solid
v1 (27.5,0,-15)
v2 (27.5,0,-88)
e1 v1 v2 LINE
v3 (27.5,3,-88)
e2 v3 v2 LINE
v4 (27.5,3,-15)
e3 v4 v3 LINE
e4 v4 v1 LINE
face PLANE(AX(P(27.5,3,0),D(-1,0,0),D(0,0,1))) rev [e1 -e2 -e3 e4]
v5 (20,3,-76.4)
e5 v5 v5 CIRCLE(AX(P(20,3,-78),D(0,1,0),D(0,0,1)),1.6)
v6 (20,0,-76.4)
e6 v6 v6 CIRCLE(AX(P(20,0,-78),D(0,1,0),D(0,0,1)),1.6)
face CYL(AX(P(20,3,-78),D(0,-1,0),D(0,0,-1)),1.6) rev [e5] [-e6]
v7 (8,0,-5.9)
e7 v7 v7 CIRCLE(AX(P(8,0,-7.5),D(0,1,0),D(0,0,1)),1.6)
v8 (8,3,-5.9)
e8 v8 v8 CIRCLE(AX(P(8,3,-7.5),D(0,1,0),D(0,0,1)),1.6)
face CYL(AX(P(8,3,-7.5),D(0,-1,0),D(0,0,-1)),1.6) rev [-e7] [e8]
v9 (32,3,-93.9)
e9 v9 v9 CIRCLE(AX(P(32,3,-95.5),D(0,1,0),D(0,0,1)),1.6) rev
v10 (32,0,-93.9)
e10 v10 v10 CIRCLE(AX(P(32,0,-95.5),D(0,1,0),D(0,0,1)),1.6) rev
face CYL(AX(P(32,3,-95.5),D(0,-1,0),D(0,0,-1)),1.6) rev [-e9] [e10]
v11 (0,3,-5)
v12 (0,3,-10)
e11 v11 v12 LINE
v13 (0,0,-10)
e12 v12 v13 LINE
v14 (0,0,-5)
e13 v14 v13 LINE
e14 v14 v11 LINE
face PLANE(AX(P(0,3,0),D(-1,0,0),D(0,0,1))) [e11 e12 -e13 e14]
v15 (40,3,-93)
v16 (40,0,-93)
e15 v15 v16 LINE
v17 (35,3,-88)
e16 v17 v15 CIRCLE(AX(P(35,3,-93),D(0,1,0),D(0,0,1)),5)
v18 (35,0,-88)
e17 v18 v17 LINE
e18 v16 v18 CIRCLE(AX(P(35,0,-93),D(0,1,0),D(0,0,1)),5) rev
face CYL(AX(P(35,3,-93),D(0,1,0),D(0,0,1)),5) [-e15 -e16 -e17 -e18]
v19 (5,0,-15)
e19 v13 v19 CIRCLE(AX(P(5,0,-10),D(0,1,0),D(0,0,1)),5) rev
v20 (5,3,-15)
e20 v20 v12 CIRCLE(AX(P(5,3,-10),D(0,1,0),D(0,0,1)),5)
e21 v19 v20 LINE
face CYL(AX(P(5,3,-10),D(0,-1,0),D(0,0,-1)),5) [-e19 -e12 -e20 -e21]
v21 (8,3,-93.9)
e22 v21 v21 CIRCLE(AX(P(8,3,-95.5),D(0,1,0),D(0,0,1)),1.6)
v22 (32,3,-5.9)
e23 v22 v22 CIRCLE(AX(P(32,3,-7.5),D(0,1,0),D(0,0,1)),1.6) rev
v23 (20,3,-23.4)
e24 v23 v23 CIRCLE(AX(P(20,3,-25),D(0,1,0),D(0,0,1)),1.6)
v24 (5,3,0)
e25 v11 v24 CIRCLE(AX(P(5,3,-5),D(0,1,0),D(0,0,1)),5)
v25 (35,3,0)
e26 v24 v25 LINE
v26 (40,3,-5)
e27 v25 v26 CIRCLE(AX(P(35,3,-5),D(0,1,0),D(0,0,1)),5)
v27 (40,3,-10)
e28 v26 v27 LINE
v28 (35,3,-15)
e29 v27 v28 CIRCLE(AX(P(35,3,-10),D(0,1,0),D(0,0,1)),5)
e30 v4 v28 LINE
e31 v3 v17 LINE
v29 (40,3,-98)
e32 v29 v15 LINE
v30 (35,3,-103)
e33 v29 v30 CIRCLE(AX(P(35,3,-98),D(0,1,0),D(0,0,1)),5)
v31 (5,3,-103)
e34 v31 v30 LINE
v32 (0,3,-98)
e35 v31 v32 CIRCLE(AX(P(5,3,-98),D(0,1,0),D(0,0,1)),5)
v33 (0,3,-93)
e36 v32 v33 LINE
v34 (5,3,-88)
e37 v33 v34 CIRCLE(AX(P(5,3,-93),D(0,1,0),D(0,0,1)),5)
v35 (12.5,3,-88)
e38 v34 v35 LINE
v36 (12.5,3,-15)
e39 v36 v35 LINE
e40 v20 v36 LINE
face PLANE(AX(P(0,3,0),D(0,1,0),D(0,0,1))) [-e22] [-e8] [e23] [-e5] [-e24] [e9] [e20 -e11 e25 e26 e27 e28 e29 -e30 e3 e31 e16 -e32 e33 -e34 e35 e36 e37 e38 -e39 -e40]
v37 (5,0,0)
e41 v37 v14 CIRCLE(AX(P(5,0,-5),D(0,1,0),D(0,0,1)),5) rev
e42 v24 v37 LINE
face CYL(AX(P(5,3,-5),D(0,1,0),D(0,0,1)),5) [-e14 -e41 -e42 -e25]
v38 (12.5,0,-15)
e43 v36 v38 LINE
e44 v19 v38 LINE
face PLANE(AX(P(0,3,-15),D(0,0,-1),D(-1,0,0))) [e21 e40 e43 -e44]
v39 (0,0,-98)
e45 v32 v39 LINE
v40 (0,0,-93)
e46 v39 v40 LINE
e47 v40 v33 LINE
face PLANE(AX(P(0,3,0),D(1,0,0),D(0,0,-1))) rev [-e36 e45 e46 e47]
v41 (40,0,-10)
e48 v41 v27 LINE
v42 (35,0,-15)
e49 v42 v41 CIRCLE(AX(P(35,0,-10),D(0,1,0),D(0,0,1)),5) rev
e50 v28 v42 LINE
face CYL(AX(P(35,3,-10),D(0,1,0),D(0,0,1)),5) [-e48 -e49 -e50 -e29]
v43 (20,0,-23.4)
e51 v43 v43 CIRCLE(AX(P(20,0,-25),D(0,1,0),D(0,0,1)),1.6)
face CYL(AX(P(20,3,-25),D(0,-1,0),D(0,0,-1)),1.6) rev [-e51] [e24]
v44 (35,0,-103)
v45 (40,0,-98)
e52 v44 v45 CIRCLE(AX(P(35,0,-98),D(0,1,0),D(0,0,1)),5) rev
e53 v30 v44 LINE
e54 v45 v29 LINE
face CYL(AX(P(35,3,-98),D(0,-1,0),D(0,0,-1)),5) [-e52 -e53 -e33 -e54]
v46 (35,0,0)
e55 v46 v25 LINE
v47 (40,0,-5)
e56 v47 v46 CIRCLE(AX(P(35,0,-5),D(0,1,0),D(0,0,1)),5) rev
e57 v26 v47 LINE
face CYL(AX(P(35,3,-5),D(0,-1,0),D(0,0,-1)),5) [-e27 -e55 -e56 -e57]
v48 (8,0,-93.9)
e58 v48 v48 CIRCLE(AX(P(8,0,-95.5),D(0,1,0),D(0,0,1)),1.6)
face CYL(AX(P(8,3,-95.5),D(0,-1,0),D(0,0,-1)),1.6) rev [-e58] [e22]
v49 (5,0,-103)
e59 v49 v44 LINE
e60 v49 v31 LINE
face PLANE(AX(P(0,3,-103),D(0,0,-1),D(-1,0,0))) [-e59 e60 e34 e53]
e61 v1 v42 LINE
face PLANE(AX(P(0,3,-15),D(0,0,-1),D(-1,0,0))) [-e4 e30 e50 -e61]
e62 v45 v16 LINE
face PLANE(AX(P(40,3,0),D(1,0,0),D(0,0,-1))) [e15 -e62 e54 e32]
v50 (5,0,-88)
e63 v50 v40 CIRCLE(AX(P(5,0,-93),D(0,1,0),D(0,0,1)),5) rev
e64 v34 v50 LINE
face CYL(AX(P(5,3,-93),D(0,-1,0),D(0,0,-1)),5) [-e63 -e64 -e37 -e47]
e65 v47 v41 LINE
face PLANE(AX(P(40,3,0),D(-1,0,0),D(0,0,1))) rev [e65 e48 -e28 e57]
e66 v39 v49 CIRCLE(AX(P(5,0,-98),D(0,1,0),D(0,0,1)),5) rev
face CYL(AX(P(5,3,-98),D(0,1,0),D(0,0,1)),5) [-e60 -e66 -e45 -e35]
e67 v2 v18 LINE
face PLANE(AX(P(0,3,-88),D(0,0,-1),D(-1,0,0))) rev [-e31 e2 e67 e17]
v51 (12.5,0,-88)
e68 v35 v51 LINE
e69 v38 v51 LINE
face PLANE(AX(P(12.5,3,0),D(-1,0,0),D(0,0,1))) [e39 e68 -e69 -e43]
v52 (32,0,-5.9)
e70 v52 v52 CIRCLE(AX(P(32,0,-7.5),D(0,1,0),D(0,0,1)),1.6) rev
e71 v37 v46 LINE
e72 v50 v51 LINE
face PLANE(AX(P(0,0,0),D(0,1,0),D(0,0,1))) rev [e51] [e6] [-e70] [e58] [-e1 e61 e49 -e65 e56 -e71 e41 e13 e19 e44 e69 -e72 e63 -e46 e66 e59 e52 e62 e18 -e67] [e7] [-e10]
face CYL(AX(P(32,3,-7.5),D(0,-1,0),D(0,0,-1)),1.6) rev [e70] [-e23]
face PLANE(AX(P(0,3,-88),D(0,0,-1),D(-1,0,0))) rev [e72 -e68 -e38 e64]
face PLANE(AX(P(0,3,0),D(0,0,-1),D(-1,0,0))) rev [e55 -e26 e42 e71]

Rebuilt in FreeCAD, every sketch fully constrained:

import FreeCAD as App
import Part
import Sketcher


def edges_at(feature, points):
    """Names of the edges that pass closest to the given points."""
    edges = feature.Shape.Edges
    near = lambda p: min(range(len(edges)), key=lambda i: edges[i].distToShape(Part.Vertex(*p))[0])
    return sorted({f"Edge{near(p) + 1}" for p in points})

doc = App.newDocument("Part")
body = doc.addObject("PartDesign::Body", "Body")

# Sketch on XZ plane
sketch1 = body.newObject("Sketcher::SketchObject", "Sketch")
sketch1.AttachmentSupport = (doc.getObject("XZ_Plane"), [""])
sketch1.MapMode = "FlatFace"
sketch1.addGeometry(Part.LineSegment(App.Vector(0, -88, 0), App.Vector(12.5, -88, 0)), False)
sketch1.addGeometry(Part.LineSegment(App.Vector(12.5, -88, 0), App.Vector(12.5, -15, 0)), False)
sketch1.addGeometry(Part.LineSegment(App.Vector(12.5, -15, 0), App.Vector(0, -15, 0)), False)
sketch1.addGeometry(Part.LineSegment(App.Vector(0, -15, 0), App.Vector(0, 0, 0)), False)
sketch1.addGeometry(Part.LineSegment(App.Vector(0, 0, 0), App.Vector(40, 0, 0)), False)
sketch1.addGeometry(Part.LineSegment(App.Vector(40, 0, 0), App.Vector(40, -15, 0)), False)
sketch1.addGeometry(Part.LineSegment(App.Vector(40, -15, 0), App.Vector(27.5, -15, 0)), False)
sketch1.addGeometry(Part.LineSegment(App.Vector(27.5, -15, 0), App.Vector(27.5, -88, 0)), False)
sketch1.addGeometry(Part.LineSegment(App.Vector(27.5, -88, 0), App.Vector(40, -88, 0)), False)
sketch1.addGeometry(Part.LineSegment(App.Vector(40, -88, 0), App.Vector(40, -103, 0)), False)
sketch1.addGeometry(Part.LineSegment(App.Vector(40, -103, 0), App.Vector(0, -103, 0)), False)
sketch1.addGeometry(Part.LineSegment(App.Vector(0, -103, 0), App.Vector(0, -88, 0)), False)
sketch1.addGeometry(Part.Circle(App.Vector(8, -95.5, 0), App.Vector(0, 0, 1), 1.6), False)
sketch1.addGeometry(Part.Circle(App.Vector(32, -95.5, 0), App.Vector(0, 0, 1), 1.6), False)
sketch1.addGeometry(Part.Circle(App.Vector(20, -78, 0), App.Vector(0, 0, 1), 1.6), False)
sketch1.addGeometry(Part.Circle(App.Vector(20, -25, 0), App.Vector(0, 0, 1), 1.6), False)
sketch1.addGeometry(Part.Circle(App.Vector(32, -7.5, 0), App.Vector(0, 0, 1), 1.6), False)
sketch1.addGeometry(Part.Circle(App.Vector(8, -7.5, 0), App.Vector(0, 0, 1), 1.6), False)
sketch1.addConstraint(Sketcher.Constraint("Coincident", 0, 2, 1, 1))
sketch1.addConstraint(Sketcher.Constraint("Coincident", 1, 2, 2, 1))
sketch1.addConstraint(Sketcher.Constraint("Coincident", 2, 2, 3, 1))
sketch1.addConstraint(Sketcher.Constraint("Coincident", 3, 2, 4, 1))
sketch1.addConstraint(Sketcher.Constraint("Coincident", 4, 2, 5, 1))
sketch1.addConstraint(Sketcher.Constraint("Coincident", 5, 2, 6, 1))
sketch1.addConstraint(Sketcher.Constraint("Coincident", 6, 2, 7, 1))
sketch1.addConstraint(Sketcher.Constraint("Coincident", 7, 2, 8, 1))
sketch1.addConstraint(Sketcher.Constraint("Coincident", 8, 2, 9, 1))
sketch1.addConstraint(Sketcher.Constraint("Coincident", 9, 2, 10, 1))
sketch1.addConstraint(Sketcher.Constraint("Coincident", 10, 2, 11, 1))
sketch1.addConstraint(Sketcher.Constraint("Coincident", 11, 2, 0, 1))
sketch1.addConstraint(Sketcher.Constraint("Horizontal", 0))
sketch1.addConstraint(Sketcher.Constraint("Vertical", 1))
sketch1.addConstraint(Sketcher.Constraint("Horizontal", 2))
sketch1.addConstraint(Sketcher.Constraint("Vertical", 3))
sketch1.addConstraint(Sketcher.Constraint("Horizontal", 4))
sketch1.addConstraint(Sketcher.Constraint("Vertical", 5))
sketch1.addConstraint(Sketcher.Constraint("Horizontal", 6))
sketch1.addConstraint(Sketcher.Constraint("Vertical", 7))
sketch1.addConstraint(Sketcher.Constraint("Horizontal", 8))
sketch1.addConstraint(Sketcher.Constraint("Vertical", 9))
sketch1.addConstraint(Sketcher.Constraint("Horizontal", 10))
sketch1.addConstraint(Sketcher.Constraint("Vertical", 11))
sketch1.addConstraint(Sketcher.Constraint("Coincident", 3, 2, -1, 1))
sketch1.addConstraint(Sketcher.Constraint("Equal", 12, 13))
sketch1.addConstraint(Sketcher.Constraint("Equal", 13, 14))
sketch1.addConstraint(Sketcher.Constraint("Equal", 14, 15))
sketch1.addConstraint(Sketcher.Constraint("Equal", 15, 16))
sketch1.addConstraint(Sketcher.Constraint("Equal", 16, 17))
sketch1.addConstraint(Sketcher.Constraint("PointOnObject", 10, 2, -2))
sketch1.addConstraint(Sketcher.Constraint("Horizontal", 12, 3, 13, 3))
sketch1.addConstraint(Sketcher.Constraint("Horizontal", 16, 3, 17, 3))
sketch1.addConstraint(Sketcher.Constraint("Horizontal", 2, 2, 5, 2))
sketch1.addConstraint(Sketcher.Constraint("Horizontal", 0, 2, 7, 2))
sketch1.addConstraint(Sketcher.Constraint("Vertical", 14, 3, 15, 3))
sketch1.addConstraint(Sketcher.Constraint("Vertical", 13, 3, 16, 3))
sketch1.addConstraint(Sketcher.Constraint("Vertical", 12, 3, 17, 3))
sketch1.addConstraint(Sketcher.Constraint("Vertical", 5, 2, 8, 2))
sketch1.addConstraint(Sketcher.Constraint("Equal", 2, 6))
sketch1.addConstraint(Sketcher.Constraint("Equal", 5, 9))
sketch1.addConstraint(Sketcher.Constraint("Diameter", 12, 3.2))
sketch1.addConstraint(Sketcher.Constraint("DistanceX", 4, 1, 4, 2, 40.0))
sketch1.addConstraint(Sketcher.Constraint("DistanceY", 1, 1, 1, 2, 73.0))
sketch1.addConstraint(Sketcher.Constraint("DistanceY", 3, 1, 3, 2, 15.0))
sketch1.addConstraint(Sketcher.Constraint("DistanceX", 0, 1, 0, 2, 12.5))
sketch1.addConstraint(Sketcher.Constraint("DistanceX", -1, 1, 12, 3, 8.0))
sketch1.addConstraint(Sketcher.Constraint("DistanceX", -1, 1, 13, 3, 32.0))
sketch1.addConstraint(Sketcher.Constraint("DistanceX", -1, 1, 14, 3, 20.0))
sketch1.addConstraint(Sketcher.Constraint("DistanceY", 14, 3, -1, 1, 78.0))
sketch1.addConstraint(Sketcher.Constraint("DistanceY", 15, 3, -1, 1, 25.0))
sketch1.addConstraint(Sketcher.Constraint("DistanceY", 13, 3, 16, 3, 88.0))
sketch1.addConstraint(Sketcher.Constraint("DistanceY", 12, 3, -1, 1, 95.5))
pad1 = body.newObject("PartDesign::Pad", "Pad")
pad1.Profile = sketch1
pad1.Length = 3
pad1.Reversed = True
doc.recompute()

fillet = body.newObject("PartDesign::Fillet", "Fillet")
fillet.Base = (pad1, edges_at(pad1, [
    (40, 1.5, -88),
    (40, 1.5, -15),
    (40, 1.5, 0),
    (0, 1.5, 0),
    (0, 1.5, -15),
    (0, 1.5, -88),
    (0, 1.5, -103),
    (40, 1.5, -103),
]))
fillet.Radius = 5

doc.recompute()
